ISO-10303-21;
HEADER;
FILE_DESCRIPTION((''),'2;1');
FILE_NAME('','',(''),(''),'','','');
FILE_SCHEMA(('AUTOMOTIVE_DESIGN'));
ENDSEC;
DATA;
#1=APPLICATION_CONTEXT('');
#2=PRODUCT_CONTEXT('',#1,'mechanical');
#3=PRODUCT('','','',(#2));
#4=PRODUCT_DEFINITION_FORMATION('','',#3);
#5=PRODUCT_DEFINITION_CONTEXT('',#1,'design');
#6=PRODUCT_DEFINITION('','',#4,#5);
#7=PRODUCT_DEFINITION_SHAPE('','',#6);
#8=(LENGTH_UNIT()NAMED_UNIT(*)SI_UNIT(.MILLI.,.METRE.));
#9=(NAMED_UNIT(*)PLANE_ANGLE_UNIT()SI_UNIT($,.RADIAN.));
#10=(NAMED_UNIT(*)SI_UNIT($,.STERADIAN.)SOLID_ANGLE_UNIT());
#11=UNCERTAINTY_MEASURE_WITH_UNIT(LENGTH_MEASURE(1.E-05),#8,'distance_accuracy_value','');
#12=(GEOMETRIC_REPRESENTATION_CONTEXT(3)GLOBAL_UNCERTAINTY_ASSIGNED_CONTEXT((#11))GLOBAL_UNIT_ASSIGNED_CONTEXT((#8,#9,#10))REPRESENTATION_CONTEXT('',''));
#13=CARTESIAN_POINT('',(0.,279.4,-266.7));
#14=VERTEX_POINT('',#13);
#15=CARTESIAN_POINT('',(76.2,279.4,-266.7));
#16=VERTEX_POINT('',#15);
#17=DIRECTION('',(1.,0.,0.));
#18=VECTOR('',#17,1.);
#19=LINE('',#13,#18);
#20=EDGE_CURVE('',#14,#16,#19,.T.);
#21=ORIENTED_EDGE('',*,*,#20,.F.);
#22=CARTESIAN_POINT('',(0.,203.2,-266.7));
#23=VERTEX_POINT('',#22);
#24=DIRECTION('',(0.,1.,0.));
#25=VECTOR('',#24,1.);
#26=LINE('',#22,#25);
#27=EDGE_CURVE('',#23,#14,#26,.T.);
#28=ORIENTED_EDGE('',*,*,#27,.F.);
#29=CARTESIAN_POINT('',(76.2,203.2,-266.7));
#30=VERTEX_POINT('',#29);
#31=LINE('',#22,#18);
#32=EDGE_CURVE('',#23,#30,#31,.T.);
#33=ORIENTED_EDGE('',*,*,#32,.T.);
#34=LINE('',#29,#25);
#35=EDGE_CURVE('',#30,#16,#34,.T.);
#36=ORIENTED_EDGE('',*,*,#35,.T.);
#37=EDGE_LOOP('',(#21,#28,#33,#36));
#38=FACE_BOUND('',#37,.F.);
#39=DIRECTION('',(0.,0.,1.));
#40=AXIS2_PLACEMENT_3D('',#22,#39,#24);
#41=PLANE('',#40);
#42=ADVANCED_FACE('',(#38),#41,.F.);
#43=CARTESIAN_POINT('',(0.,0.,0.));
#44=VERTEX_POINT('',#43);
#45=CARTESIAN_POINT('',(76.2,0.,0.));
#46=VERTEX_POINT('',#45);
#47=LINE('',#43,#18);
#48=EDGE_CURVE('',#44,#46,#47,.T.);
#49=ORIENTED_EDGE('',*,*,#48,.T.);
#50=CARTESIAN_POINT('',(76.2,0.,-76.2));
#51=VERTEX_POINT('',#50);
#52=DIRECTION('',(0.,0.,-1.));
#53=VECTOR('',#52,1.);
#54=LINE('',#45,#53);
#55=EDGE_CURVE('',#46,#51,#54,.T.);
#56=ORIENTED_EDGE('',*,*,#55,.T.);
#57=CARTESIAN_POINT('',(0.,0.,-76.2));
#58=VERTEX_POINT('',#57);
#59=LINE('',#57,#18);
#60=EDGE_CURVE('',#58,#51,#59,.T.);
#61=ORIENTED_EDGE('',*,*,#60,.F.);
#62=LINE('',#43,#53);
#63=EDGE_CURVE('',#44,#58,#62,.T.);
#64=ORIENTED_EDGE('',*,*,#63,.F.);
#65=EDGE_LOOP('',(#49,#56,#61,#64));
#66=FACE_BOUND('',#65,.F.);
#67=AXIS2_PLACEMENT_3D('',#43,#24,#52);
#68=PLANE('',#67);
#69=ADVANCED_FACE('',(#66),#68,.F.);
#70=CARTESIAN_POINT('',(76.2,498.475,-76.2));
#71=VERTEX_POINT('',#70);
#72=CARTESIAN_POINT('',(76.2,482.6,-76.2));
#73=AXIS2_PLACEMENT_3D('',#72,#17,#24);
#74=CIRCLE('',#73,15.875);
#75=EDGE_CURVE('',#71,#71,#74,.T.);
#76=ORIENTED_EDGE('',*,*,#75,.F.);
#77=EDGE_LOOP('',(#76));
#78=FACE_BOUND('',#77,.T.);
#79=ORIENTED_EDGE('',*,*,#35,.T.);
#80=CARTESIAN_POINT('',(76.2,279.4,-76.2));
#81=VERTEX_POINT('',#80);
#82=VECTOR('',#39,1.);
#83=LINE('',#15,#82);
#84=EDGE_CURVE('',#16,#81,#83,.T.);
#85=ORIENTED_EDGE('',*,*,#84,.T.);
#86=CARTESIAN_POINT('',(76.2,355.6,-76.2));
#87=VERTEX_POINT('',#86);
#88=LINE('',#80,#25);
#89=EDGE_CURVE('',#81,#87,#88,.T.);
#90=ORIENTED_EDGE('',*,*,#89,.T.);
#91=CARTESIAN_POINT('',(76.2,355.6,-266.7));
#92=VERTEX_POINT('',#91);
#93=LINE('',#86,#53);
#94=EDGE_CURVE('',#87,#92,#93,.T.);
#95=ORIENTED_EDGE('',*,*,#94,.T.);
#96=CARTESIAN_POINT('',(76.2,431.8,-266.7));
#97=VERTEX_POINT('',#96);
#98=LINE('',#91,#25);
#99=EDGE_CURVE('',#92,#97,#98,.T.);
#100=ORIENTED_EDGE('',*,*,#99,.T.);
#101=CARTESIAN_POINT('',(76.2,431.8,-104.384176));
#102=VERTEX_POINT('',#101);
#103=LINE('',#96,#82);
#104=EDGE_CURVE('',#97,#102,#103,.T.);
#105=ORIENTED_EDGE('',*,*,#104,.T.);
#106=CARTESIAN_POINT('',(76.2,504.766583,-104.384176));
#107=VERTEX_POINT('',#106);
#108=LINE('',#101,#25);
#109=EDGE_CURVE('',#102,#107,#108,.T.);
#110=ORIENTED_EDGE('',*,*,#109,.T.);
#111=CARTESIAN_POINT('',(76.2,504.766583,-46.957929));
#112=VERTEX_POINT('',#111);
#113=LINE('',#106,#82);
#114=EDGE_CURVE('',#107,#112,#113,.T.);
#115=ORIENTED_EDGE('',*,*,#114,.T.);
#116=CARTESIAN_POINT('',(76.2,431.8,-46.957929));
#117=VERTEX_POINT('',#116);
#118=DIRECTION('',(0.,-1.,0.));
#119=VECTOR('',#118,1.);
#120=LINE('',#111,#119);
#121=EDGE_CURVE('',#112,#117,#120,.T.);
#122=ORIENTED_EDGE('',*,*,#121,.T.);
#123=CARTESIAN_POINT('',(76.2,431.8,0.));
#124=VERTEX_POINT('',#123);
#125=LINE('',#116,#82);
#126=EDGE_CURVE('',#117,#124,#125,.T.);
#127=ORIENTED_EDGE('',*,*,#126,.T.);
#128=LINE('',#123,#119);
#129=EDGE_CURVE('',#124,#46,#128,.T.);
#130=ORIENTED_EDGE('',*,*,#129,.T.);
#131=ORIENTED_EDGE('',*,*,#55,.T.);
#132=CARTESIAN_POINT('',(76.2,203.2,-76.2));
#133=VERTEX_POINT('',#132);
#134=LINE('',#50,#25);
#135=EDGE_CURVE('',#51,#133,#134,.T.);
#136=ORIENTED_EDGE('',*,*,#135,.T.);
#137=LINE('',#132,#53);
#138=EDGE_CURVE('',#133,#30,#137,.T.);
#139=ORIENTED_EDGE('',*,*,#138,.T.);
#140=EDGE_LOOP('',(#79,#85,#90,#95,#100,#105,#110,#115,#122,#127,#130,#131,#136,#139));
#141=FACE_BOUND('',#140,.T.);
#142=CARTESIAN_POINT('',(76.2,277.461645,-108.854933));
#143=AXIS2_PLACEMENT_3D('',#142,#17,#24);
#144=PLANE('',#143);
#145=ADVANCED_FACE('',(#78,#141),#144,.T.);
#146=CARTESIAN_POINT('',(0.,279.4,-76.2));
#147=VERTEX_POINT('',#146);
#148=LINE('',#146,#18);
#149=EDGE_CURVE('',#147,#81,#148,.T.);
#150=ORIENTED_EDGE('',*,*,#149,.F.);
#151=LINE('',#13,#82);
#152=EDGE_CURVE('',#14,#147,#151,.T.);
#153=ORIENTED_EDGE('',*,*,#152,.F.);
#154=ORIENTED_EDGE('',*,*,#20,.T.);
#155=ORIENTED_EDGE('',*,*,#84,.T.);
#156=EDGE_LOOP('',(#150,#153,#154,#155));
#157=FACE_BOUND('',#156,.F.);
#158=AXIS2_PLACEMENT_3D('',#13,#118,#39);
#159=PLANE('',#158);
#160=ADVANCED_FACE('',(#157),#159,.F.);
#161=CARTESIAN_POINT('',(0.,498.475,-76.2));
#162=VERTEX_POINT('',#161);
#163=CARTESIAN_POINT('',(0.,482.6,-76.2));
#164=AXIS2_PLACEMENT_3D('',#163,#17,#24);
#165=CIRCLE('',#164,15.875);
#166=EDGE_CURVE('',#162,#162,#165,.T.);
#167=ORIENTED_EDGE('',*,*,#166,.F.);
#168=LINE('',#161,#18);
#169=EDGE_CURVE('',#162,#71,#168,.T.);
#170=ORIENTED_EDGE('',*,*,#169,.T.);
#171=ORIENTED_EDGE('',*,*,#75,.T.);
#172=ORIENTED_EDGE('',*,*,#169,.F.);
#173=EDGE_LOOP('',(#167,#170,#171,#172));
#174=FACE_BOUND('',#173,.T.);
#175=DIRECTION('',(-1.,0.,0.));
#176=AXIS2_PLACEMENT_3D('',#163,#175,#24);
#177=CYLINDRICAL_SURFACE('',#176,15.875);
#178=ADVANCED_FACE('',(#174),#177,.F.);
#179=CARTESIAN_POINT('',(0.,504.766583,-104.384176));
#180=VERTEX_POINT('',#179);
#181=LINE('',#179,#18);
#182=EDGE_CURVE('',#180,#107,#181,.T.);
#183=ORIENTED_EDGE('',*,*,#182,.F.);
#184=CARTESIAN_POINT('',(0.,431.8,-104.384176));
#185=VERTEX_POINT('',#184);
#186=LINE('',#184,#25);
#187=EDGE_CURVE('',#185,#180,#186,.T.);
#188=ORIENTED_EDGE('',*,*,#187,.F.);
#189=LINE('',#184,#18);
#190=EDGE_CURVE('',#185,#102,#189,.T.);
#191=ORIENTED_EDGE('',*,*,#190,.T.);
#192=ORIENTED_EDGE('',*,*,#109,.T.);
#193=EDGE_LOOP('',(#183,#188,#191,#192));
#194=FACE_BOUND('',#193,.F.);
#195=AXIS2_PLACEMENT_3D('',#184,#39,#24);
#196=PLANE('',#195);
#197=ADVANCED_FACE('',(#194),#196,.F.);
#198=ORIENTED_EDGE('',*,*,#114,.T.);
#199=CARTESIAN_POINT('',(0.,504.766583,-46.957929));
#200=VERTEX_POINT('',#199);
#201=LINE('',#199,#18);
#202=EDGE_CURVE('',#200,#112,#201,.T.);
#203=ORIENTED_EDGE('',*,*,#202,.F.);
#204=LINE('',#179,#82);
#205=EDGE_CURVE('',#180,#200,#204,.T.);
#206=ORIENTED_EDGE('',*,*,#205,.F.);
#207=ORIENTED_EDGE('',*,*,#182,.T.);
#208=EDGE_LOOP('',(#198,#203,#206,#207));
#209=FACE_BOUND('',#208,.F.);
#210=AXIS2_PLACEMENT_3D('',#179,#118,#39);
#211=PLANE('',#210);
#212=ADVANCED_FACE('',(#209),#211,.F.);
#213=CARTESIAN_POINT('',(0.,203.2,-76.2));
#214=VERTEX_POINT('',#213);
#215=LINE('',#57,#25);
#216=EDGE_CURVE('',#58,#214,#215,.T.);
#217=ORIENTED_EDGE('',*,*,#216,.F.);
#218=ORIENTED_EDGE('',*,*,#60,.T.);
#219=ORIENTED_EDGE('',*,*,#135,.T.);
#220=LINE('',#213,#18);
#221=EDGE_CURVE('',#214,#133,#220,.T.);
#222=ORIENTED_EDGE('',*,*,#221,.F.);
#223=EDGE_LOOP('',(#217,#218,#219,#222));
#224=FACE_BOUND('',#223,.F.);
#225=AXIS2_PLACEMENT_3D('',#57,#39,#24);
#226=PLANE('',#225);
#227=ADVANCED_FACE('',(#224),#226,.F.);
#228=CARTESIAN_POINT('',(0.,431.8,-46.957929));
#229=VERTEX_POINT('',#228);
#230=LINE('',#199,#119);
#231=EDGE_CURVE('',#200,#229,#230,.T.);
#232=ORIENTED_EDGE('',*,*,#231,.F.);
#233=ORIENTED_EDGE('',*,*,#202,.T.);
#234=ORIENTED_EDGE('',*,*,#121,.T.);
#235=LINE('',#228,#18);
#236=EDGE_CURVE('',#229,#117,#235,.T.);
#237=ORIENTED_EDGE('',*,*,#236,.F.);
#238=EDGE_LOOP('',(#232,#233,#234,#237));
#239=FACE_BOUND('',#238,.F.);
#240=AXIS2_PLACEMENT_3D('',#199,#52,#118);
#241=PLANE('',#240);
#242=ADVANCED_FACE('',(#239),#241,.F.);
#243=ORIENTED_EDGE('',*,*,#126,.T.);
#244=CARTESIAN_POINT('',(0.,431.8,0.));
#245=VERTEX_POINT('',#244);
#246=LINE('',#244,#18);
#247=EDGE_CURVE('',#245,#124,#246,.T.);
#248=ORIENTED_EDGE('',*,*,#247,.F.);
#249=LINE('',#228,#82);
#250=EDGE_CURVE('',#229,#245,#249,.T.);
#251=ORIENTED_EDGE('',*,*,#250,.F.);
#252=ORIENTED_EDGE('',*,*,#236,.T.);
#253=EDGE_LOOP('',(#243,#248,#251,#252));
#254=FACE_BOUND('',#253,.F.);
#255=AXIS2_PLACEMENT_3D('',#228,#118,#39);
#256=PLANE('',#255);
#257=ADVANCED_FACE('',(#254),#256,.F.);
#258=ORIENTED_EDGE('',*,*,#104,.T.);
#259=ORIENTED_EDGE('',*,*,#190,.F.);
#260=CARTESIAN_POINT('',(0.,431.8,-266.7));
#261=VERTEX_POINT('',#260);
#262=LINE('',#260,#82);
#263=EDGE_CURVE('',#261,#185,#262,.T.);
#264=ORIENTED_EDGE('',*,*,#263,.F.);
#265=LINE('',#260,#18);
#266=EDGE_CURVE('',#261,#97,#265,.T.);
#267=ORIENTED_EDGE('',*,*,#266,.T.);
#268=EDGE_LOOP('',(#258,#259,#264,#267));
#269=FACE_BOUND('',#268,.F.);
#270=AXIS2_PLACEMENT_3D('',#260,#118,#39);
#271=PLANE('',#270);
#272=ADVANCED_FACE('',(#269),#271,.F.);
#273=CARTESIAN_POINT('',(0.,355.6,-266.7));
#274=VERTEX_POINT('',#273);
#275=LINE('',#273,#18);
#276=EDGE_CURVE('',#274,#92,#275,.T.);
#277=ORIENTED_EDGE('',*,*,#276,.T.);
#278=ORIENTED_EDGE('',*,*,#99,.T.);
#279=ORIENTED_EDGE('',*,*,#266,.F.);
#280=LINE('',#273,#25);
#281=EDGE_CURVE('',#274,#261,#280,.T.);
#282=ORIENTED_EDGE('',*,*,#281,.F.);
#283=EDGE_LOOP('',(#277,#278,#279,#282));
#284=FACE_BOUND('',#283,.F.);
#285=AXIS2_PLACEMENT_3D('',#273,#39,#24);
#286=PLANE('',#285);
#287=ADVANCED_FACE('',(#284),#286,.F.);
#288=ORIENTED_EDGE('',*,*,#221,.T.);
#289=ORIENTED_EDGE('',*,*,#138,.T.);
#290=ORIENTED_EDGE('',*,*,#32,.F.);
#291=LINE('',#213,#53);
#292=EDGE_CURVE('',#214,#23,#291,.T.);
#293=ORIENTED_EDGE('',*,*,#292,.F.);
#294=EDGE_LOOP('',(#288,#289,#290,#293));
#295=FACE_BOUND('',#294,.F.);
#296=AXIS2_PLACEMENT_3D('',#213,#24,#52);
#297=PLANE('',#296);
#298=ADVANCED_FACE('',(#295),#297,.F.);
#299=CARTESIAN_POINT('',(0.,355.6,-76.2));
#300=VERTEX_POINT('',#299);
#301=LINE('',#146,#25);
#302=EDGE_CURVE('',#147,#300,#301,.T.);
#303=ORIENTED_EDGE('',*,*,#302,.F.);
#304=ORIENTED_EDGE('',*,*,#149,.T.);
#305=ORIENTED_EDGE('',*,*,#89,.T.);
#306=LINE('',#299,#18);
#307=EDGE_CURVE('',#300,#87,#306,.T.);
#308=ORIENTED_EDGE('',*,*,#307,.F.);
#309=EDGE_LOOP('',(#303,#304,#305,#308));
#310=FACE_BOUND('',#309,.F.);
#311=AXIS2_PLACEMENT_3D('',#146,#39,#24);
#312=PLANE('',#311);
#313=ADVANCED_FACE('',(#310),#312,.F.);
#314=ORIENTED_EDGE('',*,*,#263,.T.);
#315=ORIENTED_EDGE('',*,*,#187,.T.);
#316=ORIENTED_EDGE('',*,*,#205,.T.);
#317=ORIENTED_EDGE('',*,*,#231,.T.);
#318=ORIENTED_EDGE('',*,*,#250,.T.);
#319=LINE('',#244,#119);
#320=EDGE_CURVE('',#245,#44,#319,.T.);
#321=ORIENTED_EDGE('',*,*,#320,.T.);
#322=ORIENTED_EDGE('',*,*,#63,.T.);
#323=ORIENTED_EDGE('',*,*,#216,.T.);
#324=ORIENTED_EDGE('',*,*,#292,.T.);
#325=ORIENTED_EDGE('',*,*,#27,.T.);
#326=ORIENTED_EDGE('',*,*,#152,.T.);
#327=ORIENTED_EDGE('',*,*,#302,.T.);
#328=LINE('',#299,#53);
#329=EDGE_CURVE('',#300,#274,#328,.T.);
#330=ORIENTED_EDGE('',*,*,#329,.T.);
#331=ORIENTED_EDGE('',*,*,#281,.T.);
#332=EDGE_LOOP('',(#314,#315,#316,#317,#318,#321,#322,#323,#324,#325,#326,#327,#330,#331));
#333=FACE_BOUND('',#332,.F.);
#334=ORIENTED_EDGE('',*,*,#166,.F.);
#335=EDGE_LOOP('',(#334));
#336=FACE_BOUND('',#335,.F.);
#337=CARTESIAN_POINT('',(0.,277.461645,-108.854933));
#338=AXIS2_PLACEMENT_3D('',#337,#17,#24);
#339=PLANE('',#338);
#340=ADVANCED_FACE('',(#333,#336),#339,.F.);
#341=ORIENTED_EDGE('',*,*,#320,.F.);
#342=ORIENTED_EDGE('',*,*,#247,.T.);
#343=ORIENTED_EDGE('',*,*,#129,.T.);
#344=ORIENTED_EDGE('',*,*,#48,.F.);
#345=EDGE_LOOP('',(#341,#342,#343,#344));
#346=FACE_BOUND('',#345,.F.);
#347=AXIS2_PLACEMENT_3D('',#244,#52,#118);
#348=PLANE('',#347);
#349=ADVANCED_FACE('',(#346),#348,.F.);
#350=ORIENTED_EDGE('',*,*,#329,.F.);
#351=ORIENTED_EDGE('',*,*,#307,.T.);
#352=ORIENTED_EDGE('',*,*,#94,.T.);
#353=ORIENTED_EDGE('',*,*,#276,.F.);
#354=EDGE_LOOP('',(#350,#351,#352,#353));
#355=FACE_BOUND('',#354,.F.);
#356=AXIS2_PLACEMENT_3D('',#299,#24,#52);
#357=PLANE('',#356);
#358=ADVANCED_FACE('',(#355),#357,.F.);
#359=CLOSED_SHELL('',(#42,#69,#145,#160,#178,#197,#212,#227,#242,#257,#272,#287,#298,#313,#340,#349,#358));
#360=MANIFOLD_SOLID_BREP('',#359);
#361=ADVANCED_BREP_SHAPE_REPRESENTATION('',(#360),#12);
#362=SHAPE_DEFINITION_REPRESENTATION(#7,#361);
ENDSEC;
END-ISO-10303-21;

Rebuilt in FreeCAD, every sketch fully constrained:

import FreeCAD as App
import Part
import Sketcher
from FreeCAD import Vector
Q = App.Units.Quantity

doc = App.newDocument("Part")
body = doc.addObject("PartDesign::Body", "Body")

# Sketch on YZ plane
sketch1 = body.newObject("Sketcher::SketchObject", "Sketch")
sketch1.AttachmentSupport = (doc.getObject("YZ_Plane"), [""])
sketch1.MapMode = "FlatFace"
sketch1.addGeometry([
    Part.LineSegment(Vector(432, 0, 0), Vector(0, 0, 0)),  # 0
    Part.LineSegment(Vector(0, 0, 0), Vector(0, -76, 0)),  # 1
    Part.LineSegment(Vector(0, -76, 0), Vector(203, -76, 0)),  # 2
    Part.LineSegment(Vector(203, -76, 0), Vector(203, -267, 0)),  # 3
    Part.LineSegment(Vector(203, -267, 0), Vector(279, -267, 0)),  # 4
    Part.LineSegment(Vector(279, -267, 0), Vector(279, -76, 0)),  # 5
    Part.LineSegment(Vector(279, -76, 0), Vector(356, -76, 0)),  # 6
    Part.LineSegment(Vector(356, -76, 0), Vector(356, -267, 0)),  # 7
    Part.LineSegment(Vector(356, -267, 0), Vector(432, -267, 0)),  # 8
    Part.LineSegment(Vector(432, -267, 0), Vector(432, -104, 0)),  # 9
    Part.LineSegment(Vector(432, -104, 0), Vector(505, -104, 0)),  # 10
    Part.LineSegment(Vector(505, -104, 0), Vector(505, -47, 0)),  # 11
    Part.LineSegment(Vector(505, -47, 0), Vector(432, -47, 0)),  # 12
    Part.LineSegment(Vector(432, -47, 0), Vector(432, 0, 0)),  # 13
    Part.Circle(Vector(483, -76, 0), Vector(0, 0, 1), 16),  # 14
], False)
sketch1.addConstraint([
    Sketcher.Constraint("Coincident", 0, 2, 1, 1),
    Sketcher.Constraint("Coincident", 1, 2, 2, 1),
    Sketcher.Constraint("Coincident", 2, 2, 3, 1),
    Sketcher.Constraint("Coincident", 3, 2, 4, 1),
    Sketcher.Constraint("Coincident", 4, 2, 5, 1),
    Sketcher.Constraint("Coincident", 5, 2, 6, 1),
    Sketcher.Constraint("Coincident", 6, 2, 7, 1),
    Sketcher.Constraint("Coincident", 7, 2, 8, 1),
    Sketcher.Constraint("Coincident", 8, 2, 9, 1),
    Sketcher.Constraint("Coincident", 9, 2, 10, 1),
    Sketcher.Constraint("Coincident", 10, 2, 11, 1),
    Sketcher.Constraint("Coincident", 11, 2, 12, 1),
    Sketcher.Constraint("Coincident", 12, 2, 13, 1),
    Sketcher.Constraint("Coincident", 13, 2, 0, 1),
    Sketcher.Constraint("Horizontal", 0),
    Sketcher.Constraint("Vertical", 1),
    Sketcher.Constraint("Horizontal", 2),
    Sketcher.Constraint("Vertical", 3),
    Sketcher.Constraint("Horizontal", 4),
    Sketcher.Constraint("Vertical", 5),
    Sketcher.Constraint("Horizontal", 6),
    Sketcher.Constraint("Vertical", 7),
    Sketcher.Constraint("Horizontal", 8),
    Sketcher.Constraint("Vertical", 9),
    Sketcher.Constraint("Horizontal", 10),
    Sketcher.Constraint("Vertical", 11),
    Sketcher.Constraint("Horizontal", 12),
    Sketcher.Constraint("Vertical", 13),
    Sketcher.Constraint("Coincident", 0, 2, -1, 1),
    Sketcher.Constraint("Horizontal", 14, 3, 1, 2),
    Sketcher.Constraint("Horizontal", 2, 2, 5, 2),
    Sketcher.Constraint("Horizontal", 4, 2, 7, 2),
    Sketcher.Constraint("Vertical", 9, 2, 12, 2),
    Sketcher.Constraint("Equal", 4, 6),
    Sketcher.Constraint("Equal", 6, 8),
    Sketcher.Constraint("Equal", 8, 1),
    Sketcher.Constraint("Diameter", 14, Q("1.25 in")),
    Sketcher.Constraint("DistanceX", 0, 2, 0, 1, Q("17 in")),
    Sketcher.Constraint("DistanceX", 2, 1, 2, 2, Q("8 in")),
    Sketcher.Constraint("DistanceY", 3, 2, 3, 1, Q("7.5 in")),
    Sketcher.Constraint("DistanceX", -1, 1, 14, 3, Q("19 in")),
    Sketcher.Constraint("DistanceX", 10, 1, 10, 2, Q("2.8727001 in")),
    Sketcher.Constraint("DistanceY", 13, 1, 13, 2, Q("46.957929 mm")),
    Sketcher.Constraint("DistanceY", 9, 1, 9, 2, Q("162.315824 mm")),
])
pad1 = body.newObject("PartDesign::Pad", "Pad")
pad1.Profile = sketch1
pad1.Length = Q("3 in")

doc.recompute()
